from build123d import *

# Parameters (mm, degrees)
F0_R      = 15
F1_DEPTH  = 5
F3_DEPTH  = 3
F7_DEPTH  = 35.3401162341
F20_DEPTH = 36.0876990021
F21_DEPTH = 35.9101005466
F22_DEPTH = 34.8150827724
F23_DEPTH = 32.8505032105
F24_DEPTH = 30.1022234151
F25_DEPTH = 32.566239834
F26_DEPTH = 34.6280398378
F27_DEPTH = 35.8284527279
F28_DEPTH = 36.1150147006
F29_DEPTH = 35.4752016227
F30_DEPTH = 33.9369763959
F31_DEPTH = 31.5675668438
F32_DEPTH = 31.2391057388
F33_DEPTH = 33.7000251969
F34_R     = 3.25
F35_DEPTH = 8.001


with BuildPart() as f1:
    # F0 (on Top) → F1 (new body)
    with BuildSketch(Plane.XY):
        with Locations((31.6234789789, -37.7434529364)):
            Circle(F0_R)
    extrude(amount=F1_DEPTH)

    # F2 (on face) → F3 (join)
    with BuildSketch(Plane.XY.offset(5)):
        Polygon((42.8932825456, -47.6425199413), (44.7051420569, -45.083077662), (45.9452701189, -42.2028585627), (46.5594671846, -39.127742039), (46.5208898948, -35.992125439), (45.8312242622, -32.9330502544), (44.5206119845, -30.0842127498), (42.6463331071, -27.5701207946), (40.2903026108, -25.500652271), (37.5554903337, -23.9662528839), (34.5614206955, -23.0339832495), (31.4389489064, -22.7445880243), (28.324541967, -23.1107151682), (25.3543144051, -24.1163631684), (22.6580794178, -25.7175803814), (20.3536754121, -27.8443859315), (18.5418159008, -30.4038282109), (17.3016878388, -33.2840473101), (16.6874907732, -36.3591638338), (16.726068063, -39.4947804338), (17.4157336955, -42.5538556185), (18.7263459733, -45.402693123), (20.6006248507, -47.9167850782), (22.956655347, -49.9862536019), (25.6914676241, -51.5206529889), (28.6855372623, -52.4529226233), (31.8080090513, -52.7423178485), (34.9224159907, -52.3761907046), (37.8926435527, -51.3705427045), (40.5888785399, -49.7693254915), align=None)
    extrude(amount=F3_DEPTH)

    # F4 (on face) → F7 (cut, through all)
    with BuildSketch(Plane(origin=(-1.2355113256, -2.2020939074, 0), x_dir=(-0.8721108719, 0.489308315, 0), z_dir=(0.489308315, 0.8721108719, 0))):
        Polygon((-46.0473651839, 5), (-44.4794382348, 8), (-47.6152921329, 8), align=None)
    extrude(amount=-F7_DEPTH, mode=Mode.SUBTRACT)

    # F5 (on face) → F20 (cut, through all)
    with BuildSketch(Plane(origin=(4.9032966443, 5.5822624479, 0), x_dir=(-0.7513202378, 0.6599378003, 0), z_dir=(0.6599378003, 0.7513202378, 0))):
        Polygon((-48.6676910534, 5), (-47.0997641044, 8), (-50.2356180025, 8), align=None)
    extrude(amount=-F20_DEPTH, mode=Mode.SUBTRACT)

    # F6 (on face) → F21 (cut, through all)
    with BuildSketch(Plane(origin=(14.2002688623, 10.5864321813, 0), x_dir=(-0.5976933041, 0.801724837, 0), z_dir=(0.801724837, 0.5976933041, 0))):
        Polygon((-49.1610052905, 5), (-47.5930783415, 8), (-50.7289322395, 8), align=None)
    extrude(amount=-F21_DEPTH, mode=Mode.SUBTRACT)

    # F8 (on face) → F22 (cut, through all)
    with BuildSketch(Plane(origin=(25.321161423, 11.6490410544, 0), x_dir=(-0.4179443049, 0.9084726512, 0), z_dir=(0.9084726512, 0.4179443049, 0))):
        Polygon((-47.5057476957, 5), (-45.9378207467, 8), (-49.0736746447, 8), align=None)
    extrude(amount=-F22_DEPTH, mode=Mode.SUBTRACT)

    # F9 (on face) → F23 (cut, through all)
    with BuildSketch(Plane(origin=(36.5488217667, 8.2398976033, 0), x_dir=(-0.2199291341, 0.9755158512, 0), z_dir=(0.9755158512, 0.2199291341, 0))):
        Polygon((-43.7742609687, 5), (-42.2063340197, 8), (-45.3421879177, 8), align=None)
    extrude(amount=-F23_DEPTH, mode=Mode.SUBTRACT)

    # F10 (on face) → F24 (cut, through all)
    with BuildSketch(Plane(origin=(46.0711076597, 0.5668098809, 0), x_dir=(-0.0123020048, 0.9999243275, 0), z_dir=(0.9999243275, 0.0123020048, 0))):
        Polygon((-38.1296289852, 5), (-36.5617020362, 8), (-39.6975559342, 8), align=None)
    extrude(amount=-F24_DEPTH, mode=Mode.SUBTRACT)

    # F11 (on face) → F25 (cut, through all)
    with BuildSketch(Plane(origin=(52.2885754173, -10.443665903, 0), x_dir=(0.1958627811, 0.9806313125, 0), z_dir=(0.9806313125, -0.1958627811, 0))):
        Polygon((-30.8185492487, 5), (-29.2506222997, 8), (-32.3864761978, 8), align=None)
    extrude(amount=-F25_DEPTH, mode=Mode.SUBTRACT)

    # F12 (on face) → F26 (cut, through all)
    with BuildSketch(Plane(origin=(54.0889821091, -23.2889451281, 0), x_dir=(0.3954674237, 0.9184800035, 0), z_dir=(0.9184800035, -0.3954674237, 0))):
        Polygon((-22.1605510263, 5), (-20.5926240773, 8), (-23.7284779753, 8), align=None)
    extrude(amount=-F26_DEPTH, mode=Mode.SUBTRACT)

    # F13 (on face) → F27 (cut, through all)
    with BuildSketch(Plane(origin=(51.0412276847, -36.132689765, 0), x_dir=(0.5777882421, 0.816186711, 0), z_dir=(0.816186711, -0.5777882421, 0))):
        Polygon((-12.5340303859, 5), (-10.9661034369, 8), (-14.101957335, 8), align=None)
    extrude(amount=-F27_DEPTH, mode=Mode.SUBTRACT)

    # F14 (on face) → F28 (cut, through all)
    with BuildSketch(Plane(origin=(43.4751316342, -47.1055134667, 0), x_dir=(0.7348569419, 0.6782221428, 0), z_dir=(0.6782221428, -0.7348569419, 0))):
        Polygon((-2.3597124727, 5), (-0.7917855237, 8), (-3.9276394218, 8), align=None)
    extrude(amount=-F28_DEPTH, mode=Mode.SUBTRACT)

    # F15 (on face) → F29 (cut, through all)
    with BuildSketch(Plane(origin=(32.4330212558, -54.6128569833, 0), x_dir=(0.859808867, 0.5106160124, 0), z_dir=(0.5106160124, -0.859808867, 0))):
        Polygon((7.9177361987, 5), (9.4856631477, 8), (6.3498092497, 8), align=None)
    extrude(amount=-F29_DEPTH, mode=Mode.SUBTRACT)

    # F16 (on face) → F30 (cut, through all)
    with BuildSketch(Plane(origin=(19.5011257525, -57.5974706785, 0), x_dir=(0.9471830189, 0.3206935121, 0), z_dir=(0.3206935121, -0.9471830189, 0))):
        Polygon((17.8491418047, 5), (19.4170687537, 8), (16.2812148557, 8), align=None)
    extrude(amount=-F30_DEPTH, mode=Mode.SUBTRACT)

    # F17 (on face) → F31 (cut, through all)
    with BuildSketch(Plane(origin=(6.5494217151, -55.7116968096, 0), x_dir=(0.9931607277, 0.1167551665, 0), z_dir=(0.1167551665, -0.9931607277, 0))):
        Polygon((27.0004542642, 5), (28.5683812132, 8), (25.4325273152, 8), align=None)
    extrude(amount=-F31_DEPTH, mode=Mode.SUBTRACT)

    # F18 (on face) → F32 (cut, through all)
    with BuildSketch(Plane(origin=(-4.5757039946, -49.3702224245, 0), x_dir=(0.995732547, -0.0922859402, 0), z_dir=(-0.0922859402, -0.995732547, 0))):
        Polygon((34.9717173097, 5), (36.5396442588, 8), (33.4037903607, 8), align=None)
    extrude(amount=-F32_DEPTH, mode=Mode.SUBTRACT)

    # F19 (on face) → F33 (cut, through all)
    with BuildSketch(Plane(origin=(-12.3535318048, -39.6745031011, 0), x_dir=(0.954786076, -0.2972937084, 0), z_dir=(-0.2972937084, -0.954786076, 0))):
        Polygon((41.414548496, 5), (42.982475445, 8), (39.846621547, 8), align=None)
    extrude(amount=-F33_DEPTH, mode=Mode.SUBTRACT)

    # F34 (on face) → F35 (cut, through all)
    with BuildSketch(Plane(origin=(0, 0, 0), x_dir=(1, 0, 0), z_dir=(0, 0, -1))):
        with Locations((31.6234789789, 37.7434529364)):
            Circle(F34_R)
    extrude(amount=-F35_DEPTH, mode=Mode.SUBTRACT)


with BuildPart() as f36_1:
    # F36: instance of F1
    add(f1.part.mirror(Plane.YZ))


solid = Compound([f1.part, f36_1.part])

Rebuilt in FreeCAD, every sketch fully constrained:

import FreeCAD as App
import Part
import Sketcher


def add_polygon(sketch, points):
    """Adds a closed chain of lines whose ends are joined by coincident constraints."""
    first, n = sketch.GeometryCount, len(points)
    for a, b in zip(points, points[1:] + points[:1]):
        sketch.addGeometry(Part.LineSegment(App.Vector(*a, 0), App.Vector(*b, 0)), False)
    for i in range(n):
        sketch.addConstraint(Sketcher.Constraint("Coincident", first + i, 2, first + (i + 1) % n, 1))

doc = App.newDocument("Part")
params = doc.addObject("Spreadsheet::Sheet", "Params")
for row, (alias, value) in enumerate([
    ("sketch1_diameter", "30 mm"),
    ("pad1_length", "5 mm"),
    ("pad2_length", "3 mm"),
    ("sketch18_diameter", "6.5 mm"),
], start=1):
    params.set(f"A{row}", alias)
    params.set(f"B{row}", "=" + value)
    params.setAlias(f"B{row}", alias)

body = doc.addObject("PartDesign::Body", "Body")

# Sketch on XY plane
sketch1 = doc.addObject("Sketcher::SketchObject", "Sketch")
body.addObject(sketch1)
sketch1.AttachmentSupport = (doc.XY_Plane, [""])
sketch1.MapMode = "FlatFace"
sketch1.addGeometry(Part.Circle(App.Vector(32, -38, 0), App.Vector(0, 0, 1), 15), False)
sketch1.addConstraint([
    Sketcher.Constraint("Diameter", 0, 30.0),
    Sketcher.Constraint("DistanceX", -1, 1, 0, 3, 31.623479),
    Sketcher.Constraint("DistanceY", 0, 3, -1, 1, 37.743453),
])
sketch1.setExpression("Constraints[0]", "Params.sketch1_diameter")
pad1 = doc.addObject("PartDesign::Pad", "Pad")
body.addObject(pad1)
pad1.Profile = sketch1
pad1.setExpression("Length", "Params.pad1_length")

# Sketch on XY plane
sketch2 = doc.addObject("Sketcher::SketchObject", "Sketch001")
body.addObject(sketch2)
sketch2.AttachmentSupport = (doc.XY_Plane, [""])
sketch2.MapMode = "FlatFace"
sketch2.AttachmentOffset = App.Placement(App.Vector(0, 0, 5), App.Rotation())
add_polygon(sketch2, [(42.9, -47.6), (44.7, -45.1), (45.9, -42.2), (46.6, -39.1), (46.5, -36), (45.8, -32.9), (44.5, -30.1), (42.6, -27.6), (40.3, -25.5), (37.6, -24), (34.6, -23), (31.4, -22.7), (28.3, -23.1), (25.4, -24.1), (22.7, -25.7), (20.4, -27.8), (18.5, -30.4), (17.3, -33.3), (16.7, -36.4), (16.7, -39.5), (17.4, -42.6), (18.7, -45.4), (20.6, -47.9), (23, -50), (25.7, -51.5), (28.7, -52.5), (31.8, -52.7), (34.9, -52.4), (37.9, -51.4), (40.6, -49.8)])  # lines 0-29
sketch2.addConstraint([
    Sketcher.Constraint("Parallel", 0, 15),
    Sketcher.Constraint("Parallel", 1, 16),
    Sketcher.Constraint("Parallel", 2, 17),
    Sketcher.Constraint("Parallel", 3, 18),
    Sketcher.Constraint("Parallel", 4, 19),
    Sketcher.Constraint("Parallel", 5, 20),
    Sketcher.Constraint("Parallel", 6, 21),
    Sketcher.Constraint("Parallel", 7, 22),
    Sketcher.Constraint("Parallel", 8, 23),
    Sketcher.Constraint("Parallel", 9, 24),
    Sketcher.Constraint("Parallel", 10, 25),
    Sketcher.Constraint("Parallel", 11, 26),
    Sketcher.Constraint("Parallel", 12, 27),
    Sketcher.Constraint("Parallel", 13, 28),
    Sketcher.Constraint("Parallel", 14, 29),
    Sketcher.Constraint("Equal", 0, 1),
    Sketcher.Constraint("Equal", 1, 2),
    Sketcher.Constraint("Equal", 2, 3),
    Sketcher.Constraint("Equal", 3, 4),
    Sketcher.Constraint("Equal", 4, 5),
    Sketcher.Constraint("Equal", 5, 6),
    Sketcher.Constraint("Equal", 6, 7),
    Sketcher.Constraint("Equal", 7, 8),
    Sketcher.Constraint("Equal", 8, 9),
    Sketcher.Constraint("Equal", 9, 10),
    Sketcher.Constraint("Equal", 10, 11),
    Sketcher.Constraint("Equal", 11, 12),
    Sketcher.Constraint("Equal", 12, 13),
    Sketcher.Constraint("Equal", 13, 14),
    Sketcher.Constraint("Equal", 14, 15),
    Sketcher.Constraint("Equal", 15, 16),
    Sketcher.Constraint("Equal", 16, 17),
    Sketcher.Constraint("Equal", 17, 18),
    Sketcher.Constraint("Equal", 18, 19),
    Sketcher.Constraint("Equal", 19, 20),
    Sketcher.Constraint("Equal", 20, 21),
    Sketcher.Constraint("Equal", 21, 22),
    Sketcher.Constraint("Equal", 22, 23),
    Sketcher.Constraint("Equal", 23, 24),
    Sketcher.Constraint("Equal", 24, 25),
    Sketcher.Constraint("Equal", 25, 26),
    Sketcher.Constraint("Equal", 26, 27),
    Sketcher.Constraint("DistanceY", 7, 2, 8, 2, 1.534399),
    Sketcher.Constraint("DistanceX", 8, 2, 3, 2, 8.9654),
    Sketcher.Constraint("DistanceX", 15, 2, 12, 2, 6.812499),
    Sketcher.Constraint("DistanceY", 17, 2, 12, 2, 12.242801),
    Sketcher.Constraint("DistanceY", 18, 2, 13, 2, 13.7772),
    Sketcher.Constraint("DistanceX", -1, 1, 1, 2, 45.94527),
    Sketcher.Constraint("DistanceY", 1, 2, -1, 1, 42.202859),
    Sketcher.Constraint("DistanceX", -1, 1, 3, 2, 46.52089),
    Sketcher.Constraint("DistanceY", 4, 2, -1, 1, 32.93305),
    Sketcher.Constraint("DistanceX", -1, 1, 5, 2, 44.520612),
    Sketcher.Constraint("DistanceY", 6, 2, -1, 1, 27.570121),
    Sketcher.Constraint("DistanceX", -1, 1, 9, 2, 34.561421),
    Sketcher.Constraint("DistanceX", -1, 1, 10, 2, 31.438949),
    Sketcher.Constraint("DistanceY", 10, 2, -1, 1, 22.744588),
    Sketcher.Constraint("DistanceX", -1, 1, 11, 2, 28.324542),
    Sketcher.Constraint("DistanceX", -1, 1, 13, 2, 22.658079),
    Sketcher.Constraint("DistanceY", 13, 2, -1, 1, 25.71758),
    Sketcher.Constraint("DistanceY", 15, 2, -1, 1, 30.403828),
])
pad2 = doc.addObject("PartDesign::Pad", "Pad001")
body.addObject(pad2)
pad2.Profile = sketch2
pad2.setExpression("Length", "Params.pad2_length")

# Sketch on an angled plane
sketch3 = doc.addObject("Sketcher::SketchObject", "Sketch002")
body.addObject(sketch3)
sketch3.Placement = App.Placement(App.Vector(-1.235511, -2.202094, 0), App.Rotation(App.Vector(-0.872110872, 0.489308315, 0), App.Vector(0, 0, 1), App.Vector(0.489308315, 0.872110872, 0), "ZXY"))
add_polygon(sketch3, [(-46, 5), (-44.5, 8), (-47.6, 8)])  # lines 0-2
sketch3.addConstraint([
    Sketcher.Constraint("Horizontal", 1),
    Sketcher.Constraint("Equal", 0, 2),
    Sketcher.Constraint("DistanceY", -1, 1, 0, 2, 8.0),
    Sketcher.Constraint("DistanceY", -1, 1, 2, 2, 5.0),
    Sketcher.Constraint("DistanceX", 1, 2, 1, 1, 3.135854),
    Sketcher.Constraint("DistanceX", 0, 2, -1, 1, 44.479438),
])
pocket1 = doc.addObject("PartDesign::Pocket", "Pocket")
body.addObject(pocket1)
pocket1.Profile = sketch3
pocket1.Type = "ThroughAll"

# Sketch on an angled plane
sketch4 = doc.addObject("Sketcher::SketchObject", "Sketch003")
body.addObject(sketch4)
sketch4.Placement = App.Placement(App.Vector(4.903297, 5.582262, 0), App.Rotation(App.Vector(-0.751320238, 0.6599378, 0), App.Vector(0, 0, 1), App.Vector(0.6599378, 0.751320238, 0), "ZXY"))
add_polygon(sketch4, [(-48.7, 5), (-47.1, 8), (-50.2, 8)])  # lines 0-2
sketch4.addConstraint([
    Sketcher.Constraint("Horizontal", 1),
    Sketcher.Constraint("Equal", 0, 2),
    Sketcher.Constraint("DistanceY", -1, 1, 0, 2, 8.0),
    Sketcher.Constraint("DistanceY", -1, 1, 2, 2, 5.0),
    Sketcher.Constraint("DistanceX", 1, 2, 1, 1, 3.135854),
    Sketcher.Constraint("DistanceX", 2, 2, -1, 1, 48.667691),
])
pocket2 = doc.addObject("PartDesign::Pocket", "Pocket001")
body.addObject(pocket2)
pocket2.Profile = sketch4
pocket2.Type = "ThroughAll"

# Sketch on an angled plane
sketch5 = doc.addObject("Sketcher::SketchObject", "Sketch004")
body.addObject(sketch5)
sketch5.Placement = App.Placement(App.Vector(14.200269, 10.586432, 0), App.Rotation(App.Vector(-0.597693304, 0.801724837, 0), App.Vector(0, 0, 1), App.Vector(0.801724837, 0.597693304, 0), "ZXY"))
add_polygon(sketch5, [(-49.2, 5), (-47.6, 8), (-50.7, 8)])  # lines 0-2
sketch5.addConstraint([
    Sketcher.Constraint("Horizontal", 1),
    Sketcher.Constraint("Equal", 0, 2),
    Sketcher.Constraint("DistanceY", -1, 1, 0, 2, 8.0),
    Sketcher.Constraint("DistanceY", -1, 1, 2, 2, 5.0),
    Sketcher.Constraint("DistanceX", 1, 2, 1, 1, 3.135854),
    Sketcher.Constraint("DistanceX", 0, 2, -1, 1, 47.593078),
])
pocket3 = doc.addObject("PartDesign::Pocket", "Pocket002")
body.addObject(pocket3)
pocket3.Profile = sketch5
pocket3.Type = "ThroughAll"

# Sketch on an angled plane
sketch6 = doc.addObject("Sketcher::SketchObject", "Sketch005")
body.addObject(sketch6)
sketch6.Placement = App.Placement(App.Vector(25.321161, 11.649041, 0), App.Rotation(App.Vector(-0.417944305, 0.908472651, 0), App.Vector(0, 0, 1), App.Vector(0.908472651, 0.417944305, 0), "ZXY"))
add_polygon(sketch6, [(-47.5, 5), (-45.9, 8), (-49.1, 8)])  # lines 0-2
sketch6.addConstraint([
    Sketcher.Constraint("Horizontal", 1),
    Sketcher.Constraint("Equal", 0, 2),
    Sketcher.Constraint("DistanceY", -1, 1, 0, 2, 8.0),
    Sketcher.Constraint("DistanceY", -1, 1, 2, 2, 5.0),
    Sketcher.Constraint("DistanceX", 1, 2, 1, 1, 3.135854),
    Sketcher.Constraint("DistanceX", 0, 2, -1, 1, 45.937821),
])
pocket4 = doc.addObject("PartDesign::Pocket", "Pocket003")
body.addObject(pocket4)
pocket4.Profile = sketch6
pocket4.Type = "ThroughAll"

# Sketch on an angled plane
sketch7 = doc.addObject("Sketcher::SketchObject", "Sketch006")
body.addObject(sketch7)
sketch7.Placement = App.Placement(App.Vector(36.548822, 8.239898, 0), App.Rotation(App.Vector(-0.219929134, 0.975515851, 0), App.Vector(0, 0, 1), App.Vector(0.975515851, 0.219929134, 0), "ZXY"))
add_polygon(sketch7, [(-43.8, 5), (-42.2, 8), (-45.3, 8)])  # lines 0-2
sketch7.addConstraint([
    Sketcher.Constraint("Horizontal", 1),
    Sketcher.Constraint("Equal", 0, 2),
    Sketcher.Constraint("DistanceY", -1, 1, 0, 2, 8.0),
    Sketcher.Constraint("DistanceY", -1, 1, 2, 2, 5.0),
    Sketcher.Constraint("DistanceX", 1, 2, 1, 1, 3.135854),
    Sketcher.Constraint("DistanceX", 2, 2, -1, 1, 43.774261),
])
pocket5 = doc.addObject("PartDesign::Pocket", "Pocket004")
body.addObject(pocket5)
pocket5.Profile = sketch7
pocket5.Type = "ThroughAll"

# Sketch on an angled plane
sketch8 = doc.addObject("Sketcher::SketchObject", "Sketch007")
body.addObject(sketch8)
sketch8.Placement = App.Placement(App.Vector(46.071108, 0.56681, 0), App.Rotation(App.Vector(-0.012302005, 0.999924327, 0), App.Vector(0, 0, 0.999999999), App.Vector(0.999924327, 0.012302005, 0), "ZXY"))
add_polygon(sketch8, [(-38.1, 5), (-36.6, 8), (-39.7, 8)])  # lines 0-2
sketch8.addConstraint([
    Sketcher.Constraint("Horizontal", 1),
    Sketcher.Constraint("Equal", 0, 2),
    Sketcher.Constraint("DistanceY", -1, 1, 0, 2, 8.0),
    Sketcher.Constraint("DistanceY", -1, 1, 2, 2, 5.0),
    Sketcher.Constraint("DistanceX", 1, 2, 1, 1, 3.135854),
    Sketcher.Constraint("DistanceX", 2, 2, -1, 1, 38.129629),
])
pocket6 = doc.addObject("PartDesign::Pocket", "Pocket005")
body.addObject(pocket6)
pocket6.Profile = sketch8
pocket6.Type = "ThroughAll"

# Sketch on an angled plane
sketch9 = doc.addObject("Sketcher::SketchObject", "Sketch008")
body.addObject(sketch9)
sketch9.Placement = App.Placement(App.Vector(52.288575, -10.443666, 0), App.Rotation(App.Vector(0.195862781, 0.980631312, 0), App.Vector(0, 0, 0.999999999), App.Vector(0.980631312, -0.195862781, 0), "ZXY"))
add_polygon(sketch9, [(-30.8, 5), (-29.3, 8), (-32.4, 8)])  # lines 0-2
sketch9.addConstraint([
    Sketcher.Constraint("Horizontal", 1),
    Sketcher.Constraint("Equal", 0, 2),
    Sketcher.Constraint("DistanceY", -1, 1, 0, 2, 8.0),
    Sketcher.Constraint("DistanceY", -1, 1, 2, 2, 5.0),
    Sketcher.Constraint("DistanceX", 1, 2, 1, 1, 3.135854),
    Sketcher.Constraint("DistanceX", 2, 2, -1, 1, 30.818549),
])
pocket7 = doc.addObject("PartDesign::Pocket", "Pocket006")
body.addObject(pocket7)
pocket7.Profile = sketch9
pocket7.Type = "ThroughAll"

# Sketch on an angled plane
sketch10 = doc.addObject("Sketcher::SketchObject", "Sketch009")
body.addObject(sketch10)
sketch10.Placement = App.Placement(App.Vector(54.088982, -23.288945, 0), App.Rotation(App.Vector(0.395467424, 0.918480003, 0), App.Vector(0, 0, 0.999999999), App.Vector(0.918480003, -0.395467424, 0), "ZXY"))
add_polygon(sketch10, [(-22.2, 5), (-20.6, 8), (-23.7, 8)])  # lines 0-2
sketch10.addConstraint([
    Sketcher.Constraint("Horizontal", 1),
    Sketcher.Constraint("Equal", 0, 2),
    Sketcher.Constraint("DistanceY", -1, 1, 0, 2, 8.0),
    Sketcher.Constraint("DistanceY", -1, 1, 2, 2, 5.0),
    Sketcher.Constraint("DistanceX", 1, 2, 1, 1, 3.135854),
    Sketcher.Constraint("DistanceX", 2, 2, -1, 1, 22.160551),
])
pocket8 = doc.addObject("PartDesign::Pocket", "Pocket007")
body.addObject(pocket8)
pocket8.Profile = sketch10
pocket8.Type = "ThroughAll"

# Sketch on an angled plane
sketch11 = doc.addObject("Sketcher::SketchObject", "Sketch010")
body.addObject(sketch11)
sketch11.Placement = App.Placement(App.Vector(51.041228, -36.13269, 0), App.Rotation(App.Vector(0.577788242, 0.816186711, 0), App.Vector(0, 0, 1), App.Vector(0.816186711, -0.577788242, 0), "ZXY"))
add_polygon(sketch11, [(-12.5, 5), (-11, 8), (-14.1, 8)])  # lines 0-2
sketch11.addConstraint([
    Sketcher.Constraint("Horizontal", 1),
    Sketcher.Constraint("Equal", 0, 2),
    Sketcher.Constraint("DistanceY", -1, 1, 0, 2, 8.0),
    Sketcher.Constraint("DistanceY", -1, 1, 2, 2, 5.0),
    Sketcher.Constraint("DistanceX", 1, 2, 1, 1, 3.135854),
    Sketcher.Constraint("DistanceX", 2, 2, -1, 1, 12.53403),
])
pocket9 = doc.addObject("PartDesign::Pocket", "Pocket008")
body.addObject(pocket9)
pocket9.Profile = sketch11
pocket9.Type = "ThroughAll"

# Sketch on an angled plane
sketch12 = doc.addObject("Sketcher::SketchObject", "Sketch011")
body.addObject(sketch12)
sketch12.Placement = App.Placement(App.Vector(43.475132, -47.105513, 0), App.Rotation(App.Vector(0.734856942, 0.678222143, 0), App.Vector(0, 0, 1), App.Vector(0.678222143, -0.734856942, 0), "ZXY"))
add_polygon(sketch12, [(-2.4, 5), (-0.8, 8), (-3.9, 8)])  # lines 0-2
sketch12.addConstraint([
    Sketcher.Constraint("Horizontal", 1),
    Sketcher.Constraint("Equal", 0, 2),
    Sketcher.Constraint("DistanceY", -1, 1, 0, 2, 8.0),
    Sketcher.Constraint("DistanceY", -1, 1, 2, 2, 5.0),
    Sketcher.Constraint("DistanceX", 1, 2, 1, 1, 3.135854),
    Sketcher.Constraint("DistanceX", 1, 2, -1, 1, 3.927639),
])
pocket10 = doc.addObject("PartDesign::Pocket", "Pocket009")
body.addObject(pocket10)
pocket10.Profile = sketch12
pocket10.Type = "ThroughAll"

# Sketch on an angled plane
sketch13 = doc.addObject("Sketcher::SketchObject", "Sketch012")
body.addObject(sketch13)
sketch13.Placement = App.Placement(App.Vector(32.433021, -54.612857, 0), App.Rotation(App.Vector(0.859808867, 0.510616012, 0), App.Vector(0, 0, 0.999999999), App.Vector(0.510616012, -0.859808867, 0), "ZXY"))
add_polygon(sketch13, [(7.9, 5), (9.5, 8), (6.3, 8)])  # lines 0-2
sketch13.addConstraint([
    Sketcher.Constraint("Horizontal", 1),
    Sketcher.Constraint("Equal", 0, 2),
    Sketcher.Constraint("DistanceY", -1, 1, 0, 2, 8.0),
    Sketcher.Constraint("DistanceY", -1, 1, 2, 2, 5.0),
    Sketcher.Constraint("DistanceX", 1, 2, 1, 1, 3.135854),
    Sketcher.Constraint("DistanceX", -1, 1, 1, 2, 6.349809),
])
pocket11 = doc.addObject("PartDesign::Pocket", "Pocket010")
body.addObject(pocket11)
pocket11.Profile = sketch13
pocket11.Type = "ThroughAll"

# Sketch on an angled plane
sketch14 = doc.addObject("Sketcher::SketchObject", "Sketch013")
body.addObject(sketch14)
sketch14.Placement = App.Placement(App.Vector(19.501126, -57.597471, 0), App.Rotation(App.Vector(0.947183019, 0.320693512, 0), App.Vector(0, 0, 1), App.Vector(0.320693512, -0.947183019, 0), "ZXY"))
add_polygon(sketch14, [(17.8, 5), (19.4, 8), (16.3, 8)])  # lines 0-2
sketch14.addConstraint([
    Sketcher.Constraint("Horizontal", 1),
    Sketcher.Constraint("Equal", 0, 2),
    Sketcher.Constraint("DistanceY", -1, 1, 0, 2, 8.0),
    Sketcher.Constraint("DistanceY", -1, 1, 2, 2, 5.0),
    Sketcher.Constraint("DistanceX", 1, 2, 1, 1, 3.135854),
    Sketcher.Constraint("DistanceX", -1, 1, 0, 2, 19.417069),
])
pocket12 = doc.addObject("PartDesign::Pocket", "Pocket011")
body.addObject(pocket12)
pocket12.Profile = sketch14
pocket12.Type = "ThroughAll"

# Sketch on an angled plane
sketch15 = doc.addObject("Sketcher::SketchObject", "Sketch014")
body.addObject(sketch15)
sketch15.Placement = App.Placement(App.Vector(6.549422, -55.711697, 0), App.Rotation(App.Vector(0.993160728, 0.116755167, 0), App.Vector(0, 0, 1.000000001), App.Vector(0.116755167, -0.993160728, 0), "ZXY"))
add_polygon(sketch15, [(27, 5), (28.6, 8), (25.4, 8)])  # lines 0-2
sketch15.addConstraint([
    Sketcher.Constraint("Horizontal", 1),
    Sketcher.Constraint("Equal", 0, 2),
    Sketcher.Constraint("DistanceY", -1, 1, 0, 2, 8.0),
    Sketcher.Constraint("DistanceY", -1, 1, 2, 2, 5.0),
    Sketcher.Constraint("DistanceX", 1, 2, 1, 1, 3.135854),
    Sketcher.Constraint("DistanceX", -1, 1, 0, 2, 28.568381),
])
pocket13 = doc.addObject("PartDesign::Pocket", "Pocket012")
body.addObject(pocket13)
pocket13.Profile = sketch15
pocket13.Type = "ThroughAll"

# Sketch on an angled plane
sketch16 = doc.addObject("Sketcher::SketchObject", "Sketch015")
body.addObject(sketch16)
sketch16.Placement = App.Placement(App.Vector(-4.575704, -49.370222, 0), App.Rotation(App.Vector(0.995732547, -0.09228594, 0), App.Vector(0, 0, 1), App.Vector(-0.09228594, -0.995732547, 0), "ZXY"))
add_polygon(sketch16, [(35, 5), (36.5, 8), (33.4, 8)])  # lines 0-2
sketch16.addConstraint([
    Sketcher.Constraint("Horizontal", 1),
    Sketcher.Constraint("Equal", 0, 2),
    Sketcher.Constraint("DistanceY", -1, 1, 0, 2, 8.0),
    Sketcher.Constraint("DistanceY", -1, 1, 2, 2, 5.0),
    Sketcher.Constraint("DistanceX", 1, 2, 1, 1, 3.135854),
    Sketcher.Constraint("DistanceX", -1, 1, 1, 2, 33.40379),
])
pocket14 = doc.addObject("PartDesign::Pocket", "Pocket013")
body.addObject(pocket14)
pocket14.Profile = sketch16
pocket14.Type = "ThroughAll"

# Sketch on an angled plane
sketch17 = doc.addObject("Sketcher::SketchObject", "Sketch016")
body.addObject(sketch17)
sketch17.Placement = App.Placement(App.Vector(-12.353532, -39.674503, 0), App.Rotation(App.Vector(0.954786076, -0.297293708, 0), App.Vector(0, 0, 1), App.Vector(-0.297293708, -0.954786076, 0), "ZXY"))
add_polygon(sketch17, [(41.4, 5), (43, 8), (39.8, 8)])  # lines 0-2
sketch17.addConstraint([
    Sketcher.Constraint("Horizontal", 1),
    Sketcher.Constraint("Equal", 0, 2),
    Sketcher.Constraint("DistanceY", -1, 1, 0, 2, 8.0),
    Sketcher.Constraint("DistanceY", -1, 1, 2, 2, 5.0),
    Sketcher.Constraint("DistanceX", 1, 2, 1, 1, 3.135854),
    Sketcher.Constraint("DistanceX", -1, 1, 1, 2, 39.846622),
])
pocket15 = doc.addObject("PartDesign::Pocket", "Pocket014")
body.addObject(pocket15)
pocket15.Profile = sketch17
pocket15.Type = "ThroughAll"

# Sketch on XY plane
sketch18 = doc.addObject("Sketcher::SketchObject", "Sketch017")
body.addObject(sketch18)
sketch18.AttachmentSupport = (doc.XY_Plane, [""])
sketch18.MapMode = "FlatFace"
sketch18.addGeometry(Part.Circle(App.Vector(31.6, -37.7, 0), App.Vector(0, 0, 1), 3.2), False)
sketch18.addConstraint([
    Sketcher.Constraint("Diameter", 0, 6.5),
    Sketcher.Constraint("DistanceX", -1, 1, 0, 3, 31.623479),
    Sketcher.Constraint("DistanceY", 0, 3, -1, 1, 37.743453),
])
sketch18.setExpression("Constraints[0]", "Params.sketch18_diameter")
pocket16 = doc.addObject("PartDesign::Pocket", "Pocket015")
body.addObject(pocket16)
pocket16.Profile = sketch18
pocket16.Type = "ThroughAll"
pocket16.Reversed = True
body2 = doc.addObject("PartDesign::Body", "Body001")
doc.recompute()

mirroring = doc.addObject("Part::Mirroring", "Mirroring")
mirroring.Source = body
mirroring.Base = App.Vector(0, 0, 0)
mirroring.Normal = App.Vector(1, 0, 0)
body2.BaseFeature = mirroring
doc.recompute()
mirroring.Visibility = False

doc.recompute()
